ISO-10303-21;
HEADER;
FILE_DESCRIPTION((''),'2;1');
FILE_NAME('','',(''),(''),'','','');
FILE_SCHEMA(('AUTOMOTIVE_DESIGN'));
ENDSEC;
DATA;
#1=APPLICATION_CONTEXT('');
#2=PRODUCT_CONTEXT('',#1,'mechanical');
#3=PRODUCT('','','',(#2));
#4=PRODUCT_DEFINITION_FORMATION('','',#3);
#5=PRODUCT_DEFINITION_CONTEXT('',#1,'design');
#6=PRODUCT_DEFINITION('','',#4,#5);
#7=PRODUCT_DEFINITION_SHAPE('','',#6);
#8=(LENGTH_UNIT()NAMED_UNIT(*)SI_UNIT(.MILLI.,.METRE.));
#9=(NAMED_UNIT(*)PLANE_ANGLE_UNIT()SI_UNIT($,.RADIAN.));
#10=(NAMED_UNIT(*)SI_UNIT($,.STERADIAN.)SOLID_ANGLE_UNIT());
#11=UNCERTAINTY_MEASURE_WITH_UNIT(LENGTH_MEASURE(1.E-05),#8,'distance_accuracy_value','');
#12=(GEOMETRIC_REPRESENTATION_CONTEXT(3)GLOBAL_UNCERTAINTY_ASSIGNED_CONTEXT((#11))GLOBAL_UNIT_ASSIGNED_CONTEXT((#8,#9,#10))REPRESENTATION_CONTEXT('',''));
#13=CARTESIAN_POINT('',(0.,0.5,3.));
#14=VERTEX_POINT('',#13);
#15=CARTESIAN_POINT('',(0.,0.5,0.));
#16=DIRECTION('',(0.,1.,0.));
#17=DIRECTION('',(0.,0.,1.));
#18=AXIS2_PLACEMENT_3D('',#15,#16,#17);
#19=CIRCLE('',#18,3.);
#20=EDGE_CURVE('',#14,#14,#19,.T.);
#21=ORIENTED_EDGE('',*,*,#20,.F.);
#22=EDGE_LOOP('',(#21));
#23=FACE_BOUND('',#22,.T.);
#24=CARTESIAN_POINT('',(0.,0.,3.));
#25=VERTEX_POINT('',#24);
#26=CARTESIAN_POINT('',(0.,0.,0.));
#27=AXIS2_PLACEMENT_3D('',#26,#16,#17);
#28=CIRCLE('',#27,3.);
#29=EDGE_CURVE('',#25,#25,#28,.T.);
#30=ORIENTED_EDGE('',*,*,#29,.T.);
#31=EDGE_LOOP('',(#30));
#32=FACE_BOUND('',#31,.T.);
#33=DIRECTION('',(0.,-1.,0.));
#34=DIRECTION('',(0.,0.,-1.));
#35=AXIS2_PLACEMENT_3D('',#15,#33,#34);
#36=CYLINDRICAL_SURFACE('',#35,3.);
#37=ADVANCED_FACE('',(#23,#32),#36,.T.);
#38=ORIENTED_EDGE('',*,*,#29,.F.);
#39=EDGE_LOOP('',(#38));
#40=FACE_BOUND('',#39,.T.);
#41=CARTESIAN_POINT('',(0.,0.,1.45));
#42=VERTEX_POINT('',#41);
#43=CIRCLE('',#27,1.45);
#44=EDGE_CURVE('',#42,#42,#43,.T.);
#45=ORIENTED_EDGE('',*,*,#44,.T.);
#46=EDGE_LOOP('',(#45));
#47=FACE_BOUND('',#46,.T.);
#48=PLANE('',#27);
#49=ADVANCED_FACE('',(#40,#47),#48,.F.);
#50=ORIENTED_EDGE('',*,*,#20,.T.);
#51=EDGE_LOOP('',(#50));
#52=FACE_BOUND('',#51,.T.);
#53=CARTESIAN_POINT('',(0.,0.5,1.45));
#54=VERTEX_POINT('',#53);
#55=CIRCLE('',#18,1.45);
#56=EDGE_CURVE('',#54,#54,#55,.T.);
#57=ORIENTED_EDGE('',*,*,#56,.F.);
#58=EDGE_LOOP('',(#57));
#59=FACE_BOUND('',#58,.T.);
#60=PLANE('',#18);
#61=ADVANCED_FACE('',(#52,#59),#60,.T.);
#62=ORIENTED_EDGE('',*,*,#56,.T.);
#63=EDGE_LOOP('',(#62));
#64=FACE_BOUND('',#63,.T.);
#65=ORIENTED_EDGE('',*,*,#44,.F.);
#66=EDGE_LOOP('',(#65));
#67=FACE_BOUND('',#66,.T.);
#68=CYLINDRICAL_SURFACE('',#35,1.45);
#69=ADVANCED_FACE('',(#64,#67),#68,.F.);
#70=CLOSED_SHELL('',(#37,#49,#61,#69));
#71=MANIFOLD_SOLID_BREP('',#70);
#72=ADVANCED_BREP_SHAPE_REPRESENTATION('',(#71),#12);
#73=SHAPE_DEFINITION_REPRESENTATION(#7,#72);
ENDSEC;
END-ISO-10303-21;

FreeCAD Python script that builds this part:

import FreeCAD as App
import Part
import Sketcher

V = App.Vector
Q = App.Units.Quantity

doc = App.newDocument("Part")
body = doc.addObject("PartDesign::Body", "Body")

# Sketch on XZ plane
sketch1 = body.newObject("Sketcher::SketchObject", "Sketch")
sketch1.AttachmentSupport = (doc.getObject("XZ_Plane"), [""])
sketch1.MapMode = "FlatFace"
sketch1.addGeometry([
    Part.Circle(V(0, 0, 0), V(0, 0, 1), 3),
    Part.Circle(V(0, 0, 0), V(0, 0, 1), 1.4),
], False)
sketch1.addConstraint([
    Sketcher.Constraint("Coincident", 0, 3, -1, 1),
    Sketcher.Constraint("Coincident", 1, 3, -1, 1),
    Sketcher.Constraint("Diameter", 0, Q("6 mm")),
    Sketcher.Constraint("Diameter", 1, Q("2.9 mm")),
])
pad1 = body.newObject("PartDesign::Pad", "Pad")
pad1.Profile = sketch1
pad1.Length = 0.5
pad1.Reversed = True

doc.recompute()
